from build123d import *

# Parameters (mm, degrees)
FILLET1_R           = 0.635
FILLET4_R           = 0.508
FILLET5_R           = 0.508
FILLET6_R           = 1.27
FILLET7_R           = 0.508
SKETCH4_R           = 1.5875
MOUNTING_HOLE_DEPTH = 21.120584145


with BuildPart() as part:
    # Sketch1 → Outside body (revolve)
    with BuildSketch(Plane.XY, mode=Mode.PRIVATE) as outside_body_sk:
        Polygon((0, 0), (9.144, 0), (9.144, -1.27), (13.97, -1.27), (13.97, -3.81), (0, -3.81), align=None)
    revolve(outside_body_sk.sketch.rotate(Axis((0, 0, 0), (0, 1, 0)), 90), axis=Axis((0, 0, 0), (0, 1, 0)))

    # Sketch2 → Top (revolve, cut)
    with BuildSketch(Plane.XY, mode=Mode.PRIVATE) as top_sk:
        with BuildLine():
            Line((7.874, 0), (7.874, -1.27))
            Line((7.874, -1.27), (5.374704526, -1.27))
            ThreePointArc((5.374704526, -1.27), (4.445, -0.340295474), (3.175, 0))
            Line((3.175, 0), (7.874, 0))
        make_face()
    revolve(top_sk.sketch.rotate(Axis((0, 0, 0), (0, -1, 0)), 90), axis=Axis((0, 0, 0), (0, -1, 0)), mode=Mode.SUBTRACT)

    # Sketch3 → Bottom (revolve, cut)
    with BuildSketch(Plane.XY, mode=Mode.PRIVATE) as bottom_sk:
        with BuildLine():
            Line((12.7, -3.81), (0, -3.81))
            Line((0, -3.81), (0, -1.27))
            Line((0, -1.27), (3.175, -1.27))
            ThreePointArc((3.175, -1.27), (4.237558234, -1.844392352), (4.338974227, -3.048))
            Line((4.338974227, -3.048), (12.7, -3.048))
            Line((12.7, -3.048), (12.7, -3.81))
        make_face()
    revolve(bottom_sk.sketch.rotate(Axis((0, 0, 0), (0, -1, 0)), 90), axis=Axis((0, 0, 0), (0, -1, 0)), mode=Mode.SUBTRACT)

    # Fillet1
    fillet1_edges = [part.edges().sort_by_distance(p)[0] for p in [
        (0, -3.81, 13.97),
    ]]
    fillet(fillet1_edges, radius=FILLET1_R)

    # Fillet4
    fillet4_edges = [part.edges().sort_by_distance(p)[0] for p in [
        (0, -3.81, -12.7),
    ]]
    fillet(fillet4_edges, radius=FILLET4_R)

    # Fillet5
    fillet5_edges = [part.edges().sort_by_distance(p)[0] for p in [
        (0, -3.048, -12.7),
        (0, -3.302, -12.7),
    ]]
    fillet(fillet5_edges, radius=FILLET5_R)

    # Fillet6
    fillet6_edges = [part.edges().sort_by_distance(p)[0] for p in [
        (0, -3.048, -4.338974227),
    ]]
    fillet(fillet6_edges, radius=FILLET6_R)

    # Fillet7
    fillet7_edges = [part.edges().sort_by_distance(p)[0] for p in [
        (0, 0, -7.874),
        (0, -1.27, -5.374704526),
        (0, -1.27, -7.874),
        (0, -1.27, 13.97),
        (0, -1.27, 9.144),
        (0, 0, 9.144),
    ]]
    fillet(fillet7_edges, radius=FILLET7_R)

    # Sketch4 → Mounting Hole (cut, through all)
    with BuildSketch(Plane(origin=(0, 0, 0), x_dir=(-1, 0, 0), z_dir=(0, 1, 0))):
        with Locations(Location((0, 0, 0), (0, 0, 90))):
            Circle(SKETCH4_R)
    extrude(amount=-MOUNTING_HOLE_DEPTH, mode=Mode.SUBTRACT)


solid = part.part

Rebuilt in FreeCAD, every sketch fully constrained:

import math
import FreeCAD as App
import Part
import Sketcher
from FreeCAD import Vector
Q = App.Units.Quantity


def edges_at(feature, points):
    """Names of the edges that pass closest to the given points."""
    edges = feature.Shape.Edges
    near = lambda p: min(range(len(edges)), key=lambda i: edges[i].distToShape(Part.Vertex(*p))[0])
    return sorted({f"Edge{near(p) + 1}" for p in points})

doc = App.newDocument("Part")
body = doc.addObject("PartDesign::Body", "Body")

# Sketch on XY plane
sketch1 = doc.addObject("Sketcher::SketchObject", "Sketch")
body.addObject(sketch1)
sketch1.AttachmentSupport = (doc.XY_Plane, [""])
sketch1.MapMode = "FlatFace"
sketch1.addGeometry(Part.LineSegment(Vector(9.1, 0, 0), Vector(0, 0, 0)), False)
sketch1.addGeometry(Part.LineSegment(Vector(0, 0, 0), Vector(0, -3.8, 0)), False)
sketch1.addGeometry(Part.LineSegment(Vector(0, -3.8, 0), Vector(14, -3.8, 0)), False)
sketch1.addGeometry(Part.LineSegment(Vector(14, -3.8, 0), Vector(14, -1.3, 0)), False)
sketch1.addGeometry(Part.LineSegment(Vector(14, -1.3, 0), Vector(9.1, -1.3, 0)), False)
sketch1.addGeometry(Part.LineSegment(Vector(9.1, -1.3, 0), Vector(9.1, 0, 0)), False)
sketch1.addConstraint(Sketcher.Constraint("Coincident", 0, 2, 1, 1))
sketch1.addConstraint(Sketcher.Constraint("Coincident", 1, 2, 2, 1))
sketch1.addConstraint(Sketcher.Constraint("Coincident", 2, 2, 3, 1))
sketch1.addConstraint(Sketcher.Constraint("Coincident", 3, 2, 4, 1))
sketch1.addConstraint(Sketcher.Constraint("Coincident", 4, 2, 5, 1))
sketch1.addConstraint(Sketcher.Constraint("Coincident", 5, 2, 0, 1))
sketch1.addConstraint(Sketcher.Constraint("Horizontal", 0))
sketch1.addConstraint(Sketcher.Constraint("Vertical", 1))
sketch1.addConstraint(Sketcher.Constraint("Horizontal", 2))
sketch1.addConstraint(Sketcher.Constraint("Vertical", 3))
sketch1.addConstraint(Sketcher.Constraint("Horizontal", 4))
sketch1.addConstraint(Sketcher.Constraint("Vertical", 5))
sketch1.addConstraint(Sketcher.Constraint("Coincident", 0, 2, -1, 1))
sketch1.addConstraint(Sketcher.Constraint("DistanceY", 3, 1, 3, 2, Q("0.1 in")))
sketch1.addConstraint(Sketcher.Constraint("DistanceX", 0, 2, 0, 1, Q("0.36 in")))
sketch1.addConstraint(Sketcher.Constraint("DistanceX", 2, 1, 2, 2, Q("0.55 in")))
sketch1.addConstraint(Sketcher.Constraint("DistanceY", 1, 2, 1, 1, Q("0.15 in")))
revolution = doc.addObject("PartDesign::Revolution", "Revolution")
body.addObject(revolution)
revolution.Profile = sketch1
revolution.ReferenceAxis = (sketch1, ["V_Axis"])
revolution.Angle = 360

# Sketch on XY plane
sketch2 = doc.addObject("Sketcher::SketchObject", "Sketch001")
body.addObject(sketch2)
sketch2.AttachmentSupport = (doc.XY_Plane, [""])
sketch2.MapMode = "FlatFace"
sketch2.addGeometry(Part.LineSegment(Vector(7.9, -1.3, 0), Vector(7.9, 0, 0)), False)
sketch2.addGeometry(Part.LineSegment(Vector(7.9, 0, 0), Vector(3.2, 0, 0)), False)
sketch2.addGeometry(Part.ArcOfCircle(Part.Circle(Vector(3.2, -2.5, 0), Vector(0, 0, 1), 2.5), math.radians(30), math.radians(90)), False)
sketch2.addGeometry(Part.LineSegment(Vector(5.4, -1.3, 0), Vector(7.9, -1.3, 0)), False)
sketch2.addConstraint(Sketcher.Constraint("Coincident", 0, 2, 1, 1))
sketch2.addConstraint(Sketcher.Constraint("Tangent", 1, 2, 2, 2))
sketch2.addConstraint(Sketcher.Constraint("Coincident", 2, 1, 3, 1))
sketch2.addConstraint(Sketcher.Constraint("Coincident", 3, 2, 0, 1))
sketch2.addConstraint(Sketcher.Constraint("Vertical", 0))
sketch2.addConstraint(Sketcher.Constraint("Horizontal", 1))
sketch2.addConstraint(Sketcher.Constraint("Horizontal", 3))
sketch2.addConstraint(Sketcher.Constraint("PointOnObject", 0, 2, -1))
sketch2.addConstraint(Sketcher.Constraint("Radius", 2, Q("0.1 in")))
sketch2.addConstraint(Sketcher.Constraint("DistanceY", 0, 1, 0, 2, Q("0.05 in")))
sketch2.addConstraint(Sketcher.Constraint("DistanceX", 1, 2, 1, 1, Q("0.185 in")))
sketch2.addConstraint(Sketcher.Constraint("DistanceX", -1, 1, 0, 2, Q("0.31 in")))
groove = doc.addObject("PartDesign::Groove", "Groove")
body.addObject(groove)
groove.Profile = sketch2
groove.ReferenceAxis = (sketch2, ["V_Axis"])
groove.Angle = 360

# Sketch on XY plane
sketch3 = doc.addObject("Sketcher::SketchObject", "Sketch002")
body.addObject(sketch3)
sketch3.AttachmentSupport = (doc.XY_Plane, [""])
sketch3.MapMode = "FlatFace"
sketch3.addGeometry(Part.LineSegment(Vector(0, -3.8, 0), Vector(12.7, -3.8, 0)), False)
sketch3.addGeometry(Part.LineSegment(Vector(12.7, -3.8, 0), Vector(12.7, -3, 0)), False)
sketch3.addGeometry(Part.LineSegment(Vector(12.7, -3, 0), Vector(4.3, -3, 0)), False)
sketch3.addGeometry(Part.ArcOfCircle(Part.Circle(Vector(3.2, -2.5, 0), Vector(0, 0, 1), 1.3), math.radians(-24), math.radians(90)), False)
sketch3.addGeometry(Part.LineSegment(Vector(3.2, -1.3, 0), Vector(0, -1.3, 0)), False)
sketch3.addGeometry(Part.LineSegment(Vector(0, -1.3, 0), Vector(0, -3.8, 0)), False)
sketch3.addConstraint(Sketcher.Constraint("Coincident", 0, 2, 1, 1))
sketch3.addConstraint(Sketcher.Constraint("Coincident", 1, 2, 2, 1))
sketch3.addConstraint(Sketcher.Constraint("Coincident", 2, 2, 3, 1))
sketch3.addConstraint(Sketcher.Constraint("Tangent", 3, 2, 4, 1))
sketch3.addConstraint(Sketcher.Constraint("Coincident", 4, 2, 5, 1))
sketch3.addConstraint(Sketcher.Constraint("Coincident", 5, 2, 0, 1))
sketch3.addConstraint(Sketcher.Constraint("Horizontal", 0))
sketch3.addConstraint(Sketcher.Constraint("Vertical", 1))
sketch3.addConstraint(Sketcher.Constraint("Horizontal", 2))
sketch3.addConstraint(Sketcher.Constraint("Horizontal", 4))
sketch3.addConstraint(Sketcher.Constraint("Vertical", 5))
sketch3.addConstraint(Sketcher.Constraint("PointOnObject", 4, 2, -2))
sketch3.addConstraint(Sketcher.Constraint("Radius", 3, Q("0.05 in")))
sketch3.addConstraint(Sketcher.Constraint("DistanceX", 0, 1, 0, 2, Q("0.5 in")))
sketch3.addConstraint(Sketcher.Constraint("DistanceY", 5, 2, 5, 1, Q("0.1 in")))
sketch3.addConstraint(Sketcher.Constraint("DistanceY", 1, 1, 1, 2, Q("0.03 in")))
sketch3.addConstraint(Sketcher.Constraint("DistanceY", 3, 3, -1, 1, Q("0.1 in")))
sketch3.addConstraint(Sketcher.Constraint("DistanceX", 4, 2, 4, 1, Q("0.125 in")))
groove2 = doc.addObject("PartDesign::Groove", "Groove001")
body.addObject(groove2)
groove2.Profile = sketch3
groove2.ReferenceAxis = (sketch3, ["V_Axis"])
groove2.Angle = 360
doc.recompute()

fillet = doc.addObject("PartDesign::Fillet", "Fillet")
body.addObject(fillet)
fillet.Base = (groove2, edges_at(groove2, [(0, -3.81, 13.97)]))
fillet.Radius = Q("0.025 in")
doc.recompute()

fillet2 = doc.addObject("PartDesign::Fillet", "Fillet001")
body.addObject(fillet2)
fillet2.Base = (fillet, edges_at(fillet, [(0, -3.81, -12.7)]))
fillet2.Radius = Q("0.02 in")
doc.recompute()

fillet3 = doc.addObject("PartDesign::Fillet", "Fillet002")
body.addObject(fillet3)
fillet3.Base = (fillet2, edges_at(fillet2, [(0, -3.048, -12.7), (0, -3.302, -12.7)]))
fillet3.Radius = Q("0.02 in")
doc.recompute()

fillet4 = doc.addObject("PartDesign::Fillet", "Fillet003")
body.addObject(fillet4)
fillet4.Base = (fillet3, edges_at(fillet3, [(0, -3.048, -4.339)]))
fillet4.Radius = Q("0.05 in")
doc.recompute()

fillet5 = doc.addObject("PartDesign::Fillet", "Fillet004")
body.addObject(fillet5)
fillet5.Base = (fillet4, edges_at(fillet4, [
    (0, 0, -7.874),
    (0, -1.27, -5.375),
    (0, -1.27, -7.874),
    (0, -1.27, 13.97),
    (0, -1.27, 9.144),
    (0, 0, 9.144),
]))
fillet5.Radius = Q("0.02 in")

# Sketch on XZ plane
sketch4 = doc.addObject("Sketcher::SketchObject", "Sketch003")
body.addObject(sketch4)
sketch4.AttachmentSupport = (doc.XZ_Plane, [""])
sketch4.MapMode = "FlatFace"
sketch4.addGeometry(Part.Circle(Vector(0, 0, 0), Vector(0, 0, 1), 1.6), False)
sketch4.addConstraint(Sketcher.Constraint("Coincident", 0, 3, -1, 1))
sketch4.addConstraint(Sketcher.Constraint("Diameter", 0, Q("0.125 in")))
pocket1 = doc.addObject("PartDesign::Pocket", "Pocket")
body.addObject(pocket1)
pocket1.Profile = sketch4
pocket1.Type = "ThroughAll"
pocket1.Reversed = True

doc.recompute()
